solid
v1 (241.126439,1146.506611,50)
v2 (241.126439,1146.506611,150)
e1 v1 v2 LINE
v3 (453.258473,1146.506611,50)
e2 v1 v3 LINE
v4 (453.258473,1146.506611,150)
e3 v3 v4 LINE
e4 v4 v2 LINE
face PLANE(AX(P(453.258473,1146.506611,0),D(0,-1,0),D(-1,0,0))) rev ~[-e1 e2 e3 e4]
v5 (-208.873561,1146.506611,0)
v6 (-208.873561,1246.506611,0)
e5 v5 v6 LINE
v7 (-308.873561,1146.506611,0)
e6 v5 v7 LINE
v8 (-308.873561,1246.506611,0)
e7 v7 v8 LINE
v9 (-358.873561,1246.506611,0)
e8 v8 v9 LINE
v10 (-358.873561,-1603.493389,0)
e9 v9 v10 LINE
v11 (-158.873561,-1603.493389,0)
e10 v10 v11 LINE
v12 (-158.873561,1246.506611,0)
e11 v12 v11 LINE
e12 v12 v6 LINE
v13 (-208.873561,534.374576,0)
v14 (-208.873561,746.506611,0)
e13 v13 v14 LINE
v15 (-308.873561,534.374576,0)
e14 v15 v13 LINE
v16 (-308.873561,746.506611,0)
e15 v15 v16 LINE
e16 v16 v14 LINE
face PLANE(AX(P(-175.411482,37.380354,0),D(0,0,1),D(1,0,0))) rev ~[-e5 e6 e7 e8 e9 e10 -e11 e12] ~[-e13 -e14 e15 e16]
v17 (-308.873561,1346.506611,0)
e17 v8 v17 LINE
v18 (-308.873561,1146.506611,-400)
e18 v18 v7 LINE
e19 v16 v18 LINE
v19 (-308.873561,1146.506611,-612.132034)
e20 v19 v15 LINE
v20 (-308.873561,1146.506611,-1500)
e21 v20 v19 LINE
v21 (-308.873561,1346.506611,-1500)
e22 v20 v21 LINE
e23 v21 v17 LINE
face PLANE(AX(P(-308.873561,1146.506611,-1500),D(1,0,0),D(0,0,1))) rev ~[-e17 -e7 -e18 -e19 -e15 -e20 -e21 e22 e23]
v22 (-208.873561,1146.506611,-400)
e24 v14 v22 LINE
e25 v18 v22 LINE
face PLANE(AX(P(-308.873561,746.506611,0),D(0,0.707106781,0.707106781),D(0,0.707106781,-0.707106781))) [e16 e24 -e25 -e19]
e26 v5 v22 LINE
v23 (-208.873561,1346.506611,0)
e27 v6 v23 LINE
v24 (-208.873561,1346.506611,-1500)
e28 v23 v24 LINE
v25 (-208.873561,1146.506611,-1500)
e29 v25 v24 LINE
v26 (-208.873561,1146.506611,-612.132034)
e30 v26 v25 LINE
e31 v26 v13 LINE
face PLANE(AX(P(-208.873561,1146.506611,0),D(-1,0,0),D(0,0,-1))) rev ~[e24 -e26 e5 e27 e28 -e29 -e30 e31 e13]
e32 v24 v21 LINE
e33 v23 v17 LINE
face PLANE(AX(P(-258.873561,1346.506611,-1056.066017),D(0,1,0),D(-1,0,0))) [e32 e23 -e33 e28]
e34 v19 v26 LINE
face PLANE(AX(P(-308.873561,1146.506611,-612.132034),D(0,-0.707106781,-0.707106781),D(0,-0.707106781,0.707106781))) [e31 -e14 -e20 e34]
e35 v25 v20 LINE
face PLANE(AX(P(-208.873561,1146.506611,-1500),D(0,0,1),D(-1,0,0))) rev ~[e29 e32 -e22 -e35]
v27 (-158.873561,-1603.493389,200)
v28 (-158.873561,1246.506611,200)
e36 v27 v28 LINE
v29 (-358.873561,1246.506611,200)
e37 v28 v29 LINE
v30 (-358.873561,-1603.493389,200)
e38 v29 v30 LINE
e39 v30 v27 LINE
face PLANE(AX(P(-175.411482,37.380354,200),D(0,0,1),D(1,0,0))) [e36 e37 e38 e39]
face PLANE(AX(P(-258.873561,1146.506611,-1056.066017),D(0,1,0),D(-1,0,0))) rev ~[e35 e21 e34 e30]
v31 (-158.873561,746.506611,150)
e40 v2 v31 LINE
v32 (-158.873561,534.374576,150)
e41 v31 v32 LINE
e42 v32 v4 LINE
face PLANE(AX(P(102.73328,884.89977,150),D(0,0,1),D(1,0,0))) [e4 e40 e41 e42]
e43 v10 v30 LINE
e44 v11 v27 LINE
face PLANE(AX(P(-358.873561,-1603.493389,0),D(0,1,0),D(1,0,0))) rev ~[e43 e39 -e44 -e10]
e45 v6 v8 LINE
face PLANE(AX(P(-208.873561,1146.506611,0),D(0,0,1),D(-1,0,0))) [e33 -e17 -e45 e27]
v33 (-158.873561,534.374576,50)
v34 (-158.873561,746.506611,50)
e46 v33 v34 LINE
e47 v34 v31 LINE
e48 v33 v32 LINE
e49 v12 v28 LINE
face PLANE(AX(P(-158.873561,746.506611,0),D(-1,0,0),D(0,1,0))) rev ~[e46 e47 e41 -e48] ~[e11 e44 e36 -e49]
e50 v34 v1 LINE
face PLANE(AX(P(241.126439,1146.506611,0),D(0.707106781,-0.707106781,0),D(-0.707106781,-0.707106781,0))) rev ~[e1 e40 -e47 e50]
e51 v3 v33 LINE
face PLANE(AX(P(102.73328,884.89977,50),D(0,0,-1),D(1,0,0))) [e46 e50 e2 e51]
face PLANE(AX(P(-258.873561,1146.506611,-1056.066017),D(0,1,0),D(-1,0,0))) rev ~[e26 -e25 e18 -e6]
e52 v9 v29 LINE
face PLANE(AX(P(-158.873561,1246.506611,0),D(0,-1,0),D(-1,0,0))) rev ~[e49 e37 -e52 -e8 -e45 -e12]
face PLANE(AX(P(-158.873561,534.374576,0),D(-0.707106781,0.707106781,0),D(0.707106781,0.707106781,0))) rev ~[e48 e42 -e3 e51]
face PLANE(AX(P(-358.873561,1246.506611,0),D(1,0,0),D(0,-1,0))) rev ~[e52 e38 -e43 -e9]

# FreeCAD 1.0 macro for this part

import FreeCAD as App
import Part
import Sketcher
from FreeCAD import Vector
Q = App.Units.Quantity

doc = App.newDocument("Part")
body = doc.addObject("PartDesign::Body", "Body")

# Sketch on XY plane
sketch1 = body.newObject("Sketcher::SketchObject", "Sketch")
sketch1.AttachmentSupport = (doc.getObject("XY_Plane"), [""])
sketch1.MapMode = "FlatFace"
sketch1.addGeometry(Part.LineSegment(Vector(-359, 1247, 0), Vector(-359, -1603, 0)), False)
sketch1.addGeometry(Part.LineSegment(Vector(-359, -1603, 0), Vector(-159, -1603, 0)), False)
sketch1.addGeometry(Part.LineSegment(Vector(-159, -1603, 0), Vector(-159, 534, 0)), False)
sketch1.addGeometry(Part.LineSegment(Vector(-159, 534, 0), Vector(453, 1147, 0)), False)
sketch1.addGeometry(Part.LineSegment(Vector(453, 1147, 0), Vector(241, 1147, 0)), False)
sketch1.addGeometry(Part.LineSegment(Vector(241, 1147, 0), Vector(-159, 747, 0)), False)
sketch1.addGeometry(Part.LineSegment(Vector(-159, 747, 0), Vector(-159, 1247, 0)), False)
sketch1.addGeometry(Part.LineSegment(Vector(-159, 1247, 0), Vector(-359, 1247, 0)), False)
sketch1.addConstraint(Sketcher.Constraint("Coincident", 0, 2, 1, 1))
sketch1.addConstraint(Sketcher.Constraint("Coincident", 1, 2, 2, 1))
sketch1.addConstraint(Sketcher.Constraint("Coincident", 2, 2, 3, 1))
sketch1.addConstraint(Sketcher.Constraint("Coincident", 3, 2, 4, 1))
sketch1.addConstraint(Sketcher.Constraint("Coincident", 4, 2, 5, 1))
sketch1.addConstraint(Sketcher.Constraint("Coincident", 5, 2, 6, 1))
sketch1.addConstraint(Sketcher.Constraint("Coincident", 6, 2, 7, 1))
sketch1.addConstraint(Sketcher.Constraint("Coincident", 7, 2, 0, 1))
sketch1.addConstraint(Sketcher.Constraint("Vertical", 0))
sketch1.addConstraint(Sketcher.Constraint("Horizontal", 1))
sketch1.addConstraint(Sketcher.Constraint("Vertical", 2))
sketch1.addConstraint(Sketcher.Constraint("Horizontal", 4))
sketch1.addConstraint(Sketcher.Constraint("Vertical", 6))
sketch1.addConstraint(Sketcher.Constraint("Horizontal", 7))
sketch1.addConstraint(Sketcher.Constraint("Parallel", 3, 5))
sketch1.addConstraint(Sketcher.Constraint("Vertical", 2, 2, 5, 2))
sketch1.addConstraint(Sketcher.Constraint("DistanceX", 1, 1, 1, 2, 200.0))
sketch1.addConstraint(Sketcher.Constraint("DistanceY", 0, 2, 0, 1, 2850.0))
sketch1.addConstraint(Sketcher.Constraint("DistanceY", 6, 1, 6, 2, 500.0))
sketch1.addConstraint(Sketcher.Constraint("Angle", 3, Q("45 deg")))
sketch1.addConstraint(Sketcher.Constraint("DistanceY", 1, 2, 3, 2, 2750.0))
sketch1.addConstraint(Sketcher.Constraint("DistanceX", 4, 2, 4, 1, 212.132034))
sketch1.addConstraint(Sketcher.Constraint("DistanceX", 0, 2, -1, 1, 358.873561))
sketch1.addConstraint(Sketcher.Constraint("DistanceY", 0, 2, -1, 1, 1603.493389))
pad1 = body.newObject("PartDesign::Pad", "Pad")
pad1.Profile = sketch1
pad1.Length = 200

# Sketch on XY plane
sketch2 = body.newObject("Sketcher::SketchObject", "Sketch001")
sketch2.AttachmentSupport = (doc.getObject("XY_Plane"), [""])
sketch2.MapMode = "FlatFace"
sketch2.addGeometry(Part.LineSegment(Vector(453, 1147, 0), Vector(-159, 534, 0)), False)
sketch2.addGeometry(Part.LineSegment(Vector(-159, 534, 0), Vector(-159, 747, 0)), False)
sketch2.addGeometry(Part.LineSegment(Vector(-159, 747, 0), Vector(241, 1147, 0)), False)
sketch2.addGeometry(Part.LineSegment(Vector(241, 1147, 0), Vector(453, 1147, 0)), False)
sketch2.addConstraint(Sketcher.Constraint("Coincident", 0, 2, 1, 1))
sketch2.addConstraint(Sketcher.Constraint("Coincident", 1, 2, 2, 1))
sketch2.addConstraint(Sketcher.Constraint("Coincident", 2, 2, 3, 1))
sketch2.addConstraint(Sketcher.Constraint("Coincident", 3, 2, 0, 1))
sketch2.addConstraint(Sketcher.Constraint("Vertical", 1))
sketch2.addConstraint(Sketcher.Constraint("Horizontal", 3))
sketch2.addConstraint(Sketcher.Constraint("Parallel", 0, 2))
sketch2.addConstraint(Sketcher.Constraint("Equal", 3, 1))
sketch2.addConstraint(Sketcher.Constraint("DistanceX", 1, 2, 2, 2, 400.0))
sketch2.addConstraint(Sketcher.Constraint("DistanceX", 3, 1, 3, 2, 212.132034))
sketch2.addConstraint(Sketcher.Constraint("DistanceX", 0, 2, -1, 1, 158.873561))
sketch2.addConstraint(Sketcher.Constraint("DistanceY", -1, 1, 1, 2, 746.506611))
pocket1 = body.newObject("PartDesign::Pocket", "Pocket")
pocket1.Profile = sketch2
pocket1.Length = 50
pocket1.Reversed = True

# Sketch on XY plane
sketch3 = body.newObject("Sketcher::SketchObject", "Sketch002")
sketch3.AttachmentSupport = (doc.getObject("XY_Plane"), [""])
sketch3.MapMode = "FlatFace"
sketch3.AttachmentOffset = App.Placement(Vector(0, 0, 200), App.Rotation())
sketch3.addGeometry(Part.LineSegment(Vector(241, 1147, 0), Vector(-159, 747, 0)), False)
sketch3.addGeometry(Part.LineSegment(Vector(-159, 747, 0), Vector(-159, 534, 0)), False)
sketch3.addGeometry(Part.LineSegment(Vector(-159, 534, 0), Vector(453, 1147, 0)), False)
sketch3.addGeometry(Part.LineSegment(Vector(453, 1147, 0), Vector(241, 1147, 0)), False)
sketch3.addConstraint(Sketcher.Constraint("Coincident", 0, 2, 1, 1))
sketch3.addConstraint(Sketcher.Constraint("Coincident", 1, 2, 2, 1))
sketch3.addConstraint(Sketcher.Constraint("Coincident", 2, 2, 3, 1))
sketch3.addConstraint(Sketcher.Constraint("Coincident", 3, 2, 0, 1))
sketch3.addConstraint(Sketcher.Constraint("Vertical", 1))
sketch3.addConstraint(Sketcher.Constraint("Horizontal", 3))
sketch3.addConstraint(Sketcher.Constraint("Parallel", 0, 2))
sketch3.addConstraint(Sketcher.Constraint("Equal", 3, 1))
sketch3.addConstraint(Sketcher.Constraint("DistanceY", 0, 2, 2, 2, 400.0))
sketch3.addConstraint(Sketcher.Constraint("DistanceX", 3, 2, 3, 1, 212.132034))
sketch3.addConstraint(Sketcher.Constraint("DistanceX", 0, 2, -1, 1, 158.873561))
sketch3.addConstraint(Sketcher.Constraint("DistanceY", -1, 1, 0, 2, 746.506611))
pocket2 = body.newObject("PartDesign::Pocket", "Pocket001")
pocket2.Profile = sketch3
pocket2.Length = 50

# Sketch on YZ plane
sketch4 = body.newObject("Sketcher::SketchObject", "Sketch003")
sketch4.AttachmentSupport = (doc.getObject("YZ_Plane"), [""])
sketch4.MapMode = "FlatFace"
sketch4.AttachmentOffset = App.Placement(Vector(0, 0, -308.873561), App.Rotation())
sketch4.addGeometry(Part.LineSegment(Vector(534, 0, 0), Vector(747, 0, 0)), False)
sketch4.addGeometry(Part.LineSegment(Vector(747, 0, 0), Vector(1147, -400, 0)), False)
sketch4.addGeometry(Part.LineSegment(Vector(1147, -400, 0), Vector(1147, -612, 0)), False)
sketch4.addGeometry(Part.LineSegment(Vector(1147, -612, 0), Vector(534, 0, 0)), False)
sketch4.addConstraint(Sketcher.Constraint("Coincident", 0, 2, 1, 1))
sketch4.addConstraint(Sketcher.Constraint("Coincident", 1, 2, 2, 1))
sketch4.addConstraint(Sketcher.Constraint("Coincident", 2, 2, 3, 1))
sketch4.addConstraint(Sketcher.Constraint("Coincident", 3, 2, 0, 1))
sketch4.addConstraint(Sketcher.Constraint("Horizontal", 0))
sketch4.addConstraint(Sketcher.Constraint("Vertical", 2))
sketch4.addConstraint(Sketcher.Constraint("PointOnObject", 0, 2, -1))
sketch4.addConstraint(Sketcher.Constraint("Parallel", 1, 3))
sketch4.addConstraint(Sketcher.Constraint("Equal", 0, 2))
sketch4.addConstraint(Sketcher.Constraint("DistanceY", 1, 2, -1, 1, 400.0))
sketch4.addConstraint(Sketcher.Constraint("DistanceX", 0, 1, 0, 2, 212.132034))
sketch4.addConstraint(Sketcher.Constraint("DistanceX", -1, 1, 0, 2, 746.506611))
pad2 = body.newObject("PartDesign::Pad", "Pad001")
pad2.Profile = sketch4
pad2.Length = 100

# Sketch on XZ plane
sketch5 = body.newObject("Sketcher::SketchObject", "Sketch004")
sketch5.AttachmentSupport = (doc.getObject("XZ_Plane"), [""])
sketch5.MapMode = "FlatFace"
sketch5.AttachmentOffset = App.Placement(Vector(0, 0, -1146.506611), App.Rotation())
sketch5.addGeometry(Part.LineSegment(Vector(-209, -1500, 0), Vector(-309, -1500, 0)), False)
sketch5.addGeometry(Part.LineSegment(Vector(-309, -1500, 0), Vector(-309, 0, 0)), False)
sketch5.addGeometry(Part.LineSegment(Vector(-309, 0, 0), Vector(-209, 0, 0)), False)
sketch5.addGeometry(Part.LineSegment(Vector(-209, 0, 0), Vector(-209, -1500, 0)), False)
sketch5.addConstraint(Sketcher.Constraint("Coincident", 0, 2, 1, 1))
sketch5.addConstraint(Sketcher.Constraint("Coincident", 1, 2, 2, 1))
sketch5.addConstraint(Sketcher.Constraint("Coincident", 2, 2, 3, 1))
sketch5.addConstraint(Sketcher.Constraint("Coincident", 3, 2, 0, 1))
sketch5.addConstraint(Sketcher.Constraint("Horizontal", 0))
sketch5.addConstraint(Sketcher.Constraint("Vertical", 1))
sketch5.addConstraint(Sketcher.Constraint("Horizontal", 2))
sketch5.addConstraint(Sketcher.Constraint("Vertical", 3))
sketch5.addConstraint(Sketcher.Constraint("PointOnObject", 1, 2, -1))
sketch5.addConstraint(Sketcher.Constraint("DistanceX", 0, 2, 0, 1, 100.0))
sketch5.addConstraint(Sketcher.Constraint("DistanceY", 1, 1, 1, 2, 1500.0))
sketch5.addConstraint(Sketcher.Constraint("DistanceX", 0, 2, -1, 1, 308.873561))
pad3 = body.newObject("PartDesign::Pad", "Pad002")
pad3.Profile = sketch5
pad3.Length = 200
pad3.Reversed = True

doc.recompute()
